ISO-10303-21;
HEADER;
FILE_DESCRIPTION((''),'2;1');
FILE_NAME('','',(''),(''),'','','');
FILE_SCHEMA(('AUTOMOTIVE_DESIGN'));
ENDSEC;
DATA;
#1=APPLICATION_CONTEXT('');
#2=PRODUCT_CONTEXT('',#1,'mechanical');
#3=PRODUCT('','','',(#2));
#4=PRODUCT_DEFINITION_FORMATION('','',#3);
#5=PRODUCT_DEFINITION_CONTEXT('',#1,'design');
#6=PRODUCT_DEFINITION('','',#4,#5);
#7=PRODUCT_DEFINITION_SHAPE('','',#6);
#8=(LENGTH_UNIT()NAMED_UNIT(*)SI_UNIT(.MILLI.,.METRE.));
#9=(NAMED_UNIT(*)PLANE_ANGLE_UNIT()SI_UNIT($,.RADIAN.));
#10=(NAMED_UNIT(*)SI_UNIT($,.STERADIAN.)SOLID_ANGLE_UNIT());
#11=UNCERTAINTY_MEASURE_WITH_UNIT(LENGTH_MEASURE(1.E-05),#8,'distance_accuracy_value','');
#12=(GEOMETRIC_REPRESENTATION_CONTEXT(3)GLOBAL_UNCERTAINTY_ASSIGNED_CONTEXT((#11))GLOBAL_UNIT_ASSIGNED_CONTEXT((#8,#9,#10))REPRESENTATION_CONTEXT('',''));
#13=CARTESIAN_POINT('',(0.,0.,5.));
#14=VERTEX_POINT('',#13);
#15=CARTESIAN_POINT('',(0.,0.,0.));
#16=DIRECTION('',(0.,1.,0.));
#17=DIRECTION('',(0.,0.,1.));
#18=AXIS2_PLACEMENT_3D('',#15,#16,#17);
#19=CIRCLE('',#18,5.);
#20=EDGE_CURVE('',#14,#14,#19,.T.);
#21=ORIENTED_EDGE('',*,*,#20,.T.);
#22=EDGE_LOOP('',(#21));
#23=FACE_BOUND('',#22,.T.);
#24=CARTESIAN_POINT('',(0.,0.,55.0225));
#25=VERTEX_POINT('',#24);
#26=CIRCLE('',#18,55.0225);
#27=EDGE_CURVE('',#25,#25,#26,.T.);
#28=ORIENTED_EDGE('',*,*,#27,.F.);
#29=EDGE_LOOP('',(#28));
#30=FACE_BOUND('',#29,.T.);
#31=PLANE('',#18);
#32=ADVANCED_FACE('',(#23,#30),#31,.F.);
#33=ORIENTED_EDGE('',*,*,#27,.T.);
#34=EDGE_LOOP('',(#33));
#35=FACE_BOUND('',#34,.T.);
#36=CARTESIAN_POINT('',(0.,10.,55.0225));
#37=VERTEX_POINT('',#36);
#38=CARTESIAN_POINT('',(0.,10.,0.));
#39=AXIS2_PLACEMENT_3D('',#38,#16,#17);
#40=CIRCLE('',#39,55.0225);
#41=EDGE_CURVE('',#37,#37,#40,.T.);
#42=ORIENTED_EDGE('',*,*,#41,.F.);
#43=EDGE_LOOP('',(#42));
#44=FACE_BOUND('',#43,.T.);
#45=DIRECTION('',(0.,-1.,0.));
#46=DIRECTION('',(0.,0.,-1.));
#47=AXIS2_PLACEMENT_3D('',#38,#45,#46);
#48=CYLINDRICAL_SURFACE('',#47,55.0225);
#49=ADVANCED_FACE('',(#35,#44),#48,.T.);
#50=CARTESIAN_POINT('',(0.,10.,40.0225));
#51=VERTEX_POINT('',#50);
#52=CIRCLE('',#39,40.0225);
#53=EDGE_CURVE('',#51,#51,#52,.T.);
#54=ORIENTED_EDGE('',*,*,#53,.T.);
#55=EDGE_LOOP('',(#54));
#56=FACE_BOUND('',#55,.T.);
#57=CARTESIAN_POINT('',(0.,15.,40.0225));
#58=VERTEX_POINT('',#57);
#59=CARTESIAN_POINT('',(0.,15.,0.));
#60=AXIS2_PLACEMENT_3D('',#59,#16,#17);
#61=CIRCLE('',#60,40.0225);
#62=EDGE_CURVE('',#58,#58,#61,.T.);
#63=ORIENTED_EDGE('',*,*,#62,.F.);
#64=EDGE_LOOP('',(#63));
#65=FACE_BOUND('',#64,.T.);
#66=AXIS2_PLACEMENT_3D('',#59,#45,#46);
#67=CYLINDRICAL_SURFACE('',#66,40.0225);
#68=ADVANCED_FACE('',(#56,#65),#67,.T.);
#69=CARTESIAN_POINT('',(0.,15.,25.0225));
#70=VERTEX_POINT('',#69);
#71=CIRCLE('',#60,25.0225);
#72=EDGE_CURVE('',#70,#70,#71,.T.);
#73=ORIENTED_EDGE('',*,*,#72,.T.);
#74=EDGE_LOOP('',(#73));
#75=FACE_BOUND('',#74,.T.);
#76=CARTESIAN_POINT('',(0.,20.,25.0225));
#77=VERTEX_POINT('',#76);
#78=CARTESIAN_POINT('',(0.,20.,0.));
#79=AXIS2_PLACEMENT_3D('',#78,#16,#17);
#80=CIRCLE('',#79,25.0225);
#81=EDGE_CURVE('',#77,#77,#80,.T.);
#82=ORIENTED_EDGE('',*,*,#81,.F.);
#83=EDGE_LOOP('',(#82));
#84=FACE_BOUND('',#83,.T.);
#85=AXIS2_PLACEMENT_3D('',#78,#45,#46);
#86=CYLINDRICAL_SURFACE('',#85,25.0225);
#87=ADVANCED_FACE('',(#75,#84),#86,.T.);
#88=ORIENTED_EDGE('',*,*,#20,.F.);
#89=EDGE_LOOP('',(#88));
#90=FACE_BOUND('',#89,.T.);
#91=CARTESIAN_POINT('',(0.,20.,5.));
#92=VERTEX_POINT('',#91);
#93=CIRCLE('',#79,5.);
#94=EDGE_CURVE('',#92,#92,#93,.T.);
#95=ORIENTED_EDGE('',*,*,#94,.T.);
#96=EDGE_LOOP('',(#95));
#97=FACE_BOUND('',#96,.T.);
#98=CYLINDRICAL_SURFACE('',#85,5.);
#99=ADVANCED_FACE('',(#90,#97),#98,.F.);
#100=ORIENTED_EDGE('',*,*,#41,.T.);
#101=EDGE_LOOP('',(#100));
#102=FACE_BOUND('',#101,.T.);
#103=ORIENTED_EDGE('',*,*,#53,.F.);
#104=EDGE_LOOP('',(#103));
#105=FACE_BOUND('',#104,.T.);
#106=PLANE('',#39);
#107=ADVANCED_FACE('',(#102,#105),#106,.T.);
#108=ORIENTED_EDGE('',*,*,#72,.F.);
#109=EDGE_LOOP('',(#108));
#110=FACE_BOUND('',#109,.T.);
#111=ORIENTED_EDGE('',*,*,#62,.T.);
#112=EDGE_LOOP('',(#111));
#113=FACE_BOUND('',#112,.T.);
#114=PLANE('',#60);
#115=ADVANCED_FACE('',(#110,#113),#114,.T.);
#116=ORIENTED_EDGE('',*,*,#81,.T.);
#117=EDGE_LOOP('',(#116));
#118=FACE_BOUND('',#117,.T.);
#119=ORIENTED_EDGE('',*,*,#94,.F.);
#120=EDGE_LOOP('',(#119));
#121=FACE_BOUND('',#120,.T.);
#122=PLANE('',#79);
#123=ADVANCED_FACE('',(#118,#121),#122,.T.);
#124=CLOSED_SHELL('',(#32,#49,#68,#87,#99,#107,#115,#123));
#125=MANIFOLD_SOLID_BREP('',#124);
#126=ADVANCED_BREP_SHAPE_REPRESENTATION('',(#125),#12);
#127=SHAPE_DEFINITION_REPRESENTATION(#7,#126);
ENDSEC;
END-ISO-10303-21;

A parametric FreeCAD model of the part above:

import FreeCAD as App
import Part
import Sketcher

V = App.Vector

doc = App.newDocument("Part")
body = doc.addObject("PartDesign::Body", "Body")

# Sketch on XZ plane
sketch1 = body.newObject("Sketcher::SketchObject", "Sketch")
sketch1.AttachmentSupport = (doc.getObject("XZ_Plane"), [""])
sketch1.MapMode = "FlatFace"
sketch1.addGeometry([
    Part.Circle(V(0, 0, 0), V(0, 0, 1), 55),
    Part.Circle(V(0, 0, 0), V(0, 0, 1), 40),
], False)
sketch1.addConstraint([
    Sketcher.Constraint("Coincident", 0, 3, -1, 1),
    Sketcher.Constraint("Coincident", 1, 3, -1, 1),
    Sketcher.Constraint("Diameter", 0, 110.045),
    Sketcher.Constraint("Diameter", 1, 80.045),
])
pad1 = body.newObject("PartDesign::Pad", "Pad")
pad1.Profile = sketch1
pad1.Length = 10
pad1.Reversed = True

# Sketch on XZ plane
sketch2 = body.newObject("Sketcher::SketchObject", "Sketch001")
sketch2.AttachmentSupport = (doc.getObject("XZ_Plane"), [""])
sketch2.MapMode = "FlatFace"
sketch2.addGeometry([
    Part.Circle(V(0, 0, 0), V(0, 0, 1), 40),
    Part.Circle(V(0, 0, 0), V(0, 0, 1), 25),
], False)
sketch2.addConstraint([
    Sketcher.Constraint("Coincident", 0, 3, -1, 1),
    Sketcher.Constraint("Coincident", 1, 3, -1, 1),
    Sketcher.Constraint("Diameter", 0, 80.045),
    Sketcher.Constraint("Diameter", 1, 50.045),
])
pad2 = body.newObject("PartDesign::Pad", "Pad001")
pad2.Profile = sketch2
pad2.Length = 15
pad2.Reversed = True

# Sketch on XZ plane
sketch3 = body.newObject("Sketcher::SketchObject", "Sketch002")
sketch3.AttachmentSupport = (doc.getObject("XZ_Plane"), [""])
sketch3.MapMode = "FlatFace"
sketch3.addGeometry([
    Part.Circle(V(0, 0, 0), V(0, 0, 1), 25),
    Part.Circle(V(0, 0, 0), V(0, 0, 1), 5),
], False)
sketch3.addConstraint([
    Sketcher.Constraint("Coincident", 0, 3, -1, 1),
    Sketcher.Constraint("Coincident", 1, 3, -1, 1),
    Sketcher.Constraint("Diameter", 1, 10.0),
    Sketcher.Constraint("Diameter", 0, 50.045),
])
pad3 = body.newObject("PartDesign::Pad", "Pad002")
pad3.Profile = sketch3
pad3.Length = 20
pad3.Reversed = True

doc.recompute()
